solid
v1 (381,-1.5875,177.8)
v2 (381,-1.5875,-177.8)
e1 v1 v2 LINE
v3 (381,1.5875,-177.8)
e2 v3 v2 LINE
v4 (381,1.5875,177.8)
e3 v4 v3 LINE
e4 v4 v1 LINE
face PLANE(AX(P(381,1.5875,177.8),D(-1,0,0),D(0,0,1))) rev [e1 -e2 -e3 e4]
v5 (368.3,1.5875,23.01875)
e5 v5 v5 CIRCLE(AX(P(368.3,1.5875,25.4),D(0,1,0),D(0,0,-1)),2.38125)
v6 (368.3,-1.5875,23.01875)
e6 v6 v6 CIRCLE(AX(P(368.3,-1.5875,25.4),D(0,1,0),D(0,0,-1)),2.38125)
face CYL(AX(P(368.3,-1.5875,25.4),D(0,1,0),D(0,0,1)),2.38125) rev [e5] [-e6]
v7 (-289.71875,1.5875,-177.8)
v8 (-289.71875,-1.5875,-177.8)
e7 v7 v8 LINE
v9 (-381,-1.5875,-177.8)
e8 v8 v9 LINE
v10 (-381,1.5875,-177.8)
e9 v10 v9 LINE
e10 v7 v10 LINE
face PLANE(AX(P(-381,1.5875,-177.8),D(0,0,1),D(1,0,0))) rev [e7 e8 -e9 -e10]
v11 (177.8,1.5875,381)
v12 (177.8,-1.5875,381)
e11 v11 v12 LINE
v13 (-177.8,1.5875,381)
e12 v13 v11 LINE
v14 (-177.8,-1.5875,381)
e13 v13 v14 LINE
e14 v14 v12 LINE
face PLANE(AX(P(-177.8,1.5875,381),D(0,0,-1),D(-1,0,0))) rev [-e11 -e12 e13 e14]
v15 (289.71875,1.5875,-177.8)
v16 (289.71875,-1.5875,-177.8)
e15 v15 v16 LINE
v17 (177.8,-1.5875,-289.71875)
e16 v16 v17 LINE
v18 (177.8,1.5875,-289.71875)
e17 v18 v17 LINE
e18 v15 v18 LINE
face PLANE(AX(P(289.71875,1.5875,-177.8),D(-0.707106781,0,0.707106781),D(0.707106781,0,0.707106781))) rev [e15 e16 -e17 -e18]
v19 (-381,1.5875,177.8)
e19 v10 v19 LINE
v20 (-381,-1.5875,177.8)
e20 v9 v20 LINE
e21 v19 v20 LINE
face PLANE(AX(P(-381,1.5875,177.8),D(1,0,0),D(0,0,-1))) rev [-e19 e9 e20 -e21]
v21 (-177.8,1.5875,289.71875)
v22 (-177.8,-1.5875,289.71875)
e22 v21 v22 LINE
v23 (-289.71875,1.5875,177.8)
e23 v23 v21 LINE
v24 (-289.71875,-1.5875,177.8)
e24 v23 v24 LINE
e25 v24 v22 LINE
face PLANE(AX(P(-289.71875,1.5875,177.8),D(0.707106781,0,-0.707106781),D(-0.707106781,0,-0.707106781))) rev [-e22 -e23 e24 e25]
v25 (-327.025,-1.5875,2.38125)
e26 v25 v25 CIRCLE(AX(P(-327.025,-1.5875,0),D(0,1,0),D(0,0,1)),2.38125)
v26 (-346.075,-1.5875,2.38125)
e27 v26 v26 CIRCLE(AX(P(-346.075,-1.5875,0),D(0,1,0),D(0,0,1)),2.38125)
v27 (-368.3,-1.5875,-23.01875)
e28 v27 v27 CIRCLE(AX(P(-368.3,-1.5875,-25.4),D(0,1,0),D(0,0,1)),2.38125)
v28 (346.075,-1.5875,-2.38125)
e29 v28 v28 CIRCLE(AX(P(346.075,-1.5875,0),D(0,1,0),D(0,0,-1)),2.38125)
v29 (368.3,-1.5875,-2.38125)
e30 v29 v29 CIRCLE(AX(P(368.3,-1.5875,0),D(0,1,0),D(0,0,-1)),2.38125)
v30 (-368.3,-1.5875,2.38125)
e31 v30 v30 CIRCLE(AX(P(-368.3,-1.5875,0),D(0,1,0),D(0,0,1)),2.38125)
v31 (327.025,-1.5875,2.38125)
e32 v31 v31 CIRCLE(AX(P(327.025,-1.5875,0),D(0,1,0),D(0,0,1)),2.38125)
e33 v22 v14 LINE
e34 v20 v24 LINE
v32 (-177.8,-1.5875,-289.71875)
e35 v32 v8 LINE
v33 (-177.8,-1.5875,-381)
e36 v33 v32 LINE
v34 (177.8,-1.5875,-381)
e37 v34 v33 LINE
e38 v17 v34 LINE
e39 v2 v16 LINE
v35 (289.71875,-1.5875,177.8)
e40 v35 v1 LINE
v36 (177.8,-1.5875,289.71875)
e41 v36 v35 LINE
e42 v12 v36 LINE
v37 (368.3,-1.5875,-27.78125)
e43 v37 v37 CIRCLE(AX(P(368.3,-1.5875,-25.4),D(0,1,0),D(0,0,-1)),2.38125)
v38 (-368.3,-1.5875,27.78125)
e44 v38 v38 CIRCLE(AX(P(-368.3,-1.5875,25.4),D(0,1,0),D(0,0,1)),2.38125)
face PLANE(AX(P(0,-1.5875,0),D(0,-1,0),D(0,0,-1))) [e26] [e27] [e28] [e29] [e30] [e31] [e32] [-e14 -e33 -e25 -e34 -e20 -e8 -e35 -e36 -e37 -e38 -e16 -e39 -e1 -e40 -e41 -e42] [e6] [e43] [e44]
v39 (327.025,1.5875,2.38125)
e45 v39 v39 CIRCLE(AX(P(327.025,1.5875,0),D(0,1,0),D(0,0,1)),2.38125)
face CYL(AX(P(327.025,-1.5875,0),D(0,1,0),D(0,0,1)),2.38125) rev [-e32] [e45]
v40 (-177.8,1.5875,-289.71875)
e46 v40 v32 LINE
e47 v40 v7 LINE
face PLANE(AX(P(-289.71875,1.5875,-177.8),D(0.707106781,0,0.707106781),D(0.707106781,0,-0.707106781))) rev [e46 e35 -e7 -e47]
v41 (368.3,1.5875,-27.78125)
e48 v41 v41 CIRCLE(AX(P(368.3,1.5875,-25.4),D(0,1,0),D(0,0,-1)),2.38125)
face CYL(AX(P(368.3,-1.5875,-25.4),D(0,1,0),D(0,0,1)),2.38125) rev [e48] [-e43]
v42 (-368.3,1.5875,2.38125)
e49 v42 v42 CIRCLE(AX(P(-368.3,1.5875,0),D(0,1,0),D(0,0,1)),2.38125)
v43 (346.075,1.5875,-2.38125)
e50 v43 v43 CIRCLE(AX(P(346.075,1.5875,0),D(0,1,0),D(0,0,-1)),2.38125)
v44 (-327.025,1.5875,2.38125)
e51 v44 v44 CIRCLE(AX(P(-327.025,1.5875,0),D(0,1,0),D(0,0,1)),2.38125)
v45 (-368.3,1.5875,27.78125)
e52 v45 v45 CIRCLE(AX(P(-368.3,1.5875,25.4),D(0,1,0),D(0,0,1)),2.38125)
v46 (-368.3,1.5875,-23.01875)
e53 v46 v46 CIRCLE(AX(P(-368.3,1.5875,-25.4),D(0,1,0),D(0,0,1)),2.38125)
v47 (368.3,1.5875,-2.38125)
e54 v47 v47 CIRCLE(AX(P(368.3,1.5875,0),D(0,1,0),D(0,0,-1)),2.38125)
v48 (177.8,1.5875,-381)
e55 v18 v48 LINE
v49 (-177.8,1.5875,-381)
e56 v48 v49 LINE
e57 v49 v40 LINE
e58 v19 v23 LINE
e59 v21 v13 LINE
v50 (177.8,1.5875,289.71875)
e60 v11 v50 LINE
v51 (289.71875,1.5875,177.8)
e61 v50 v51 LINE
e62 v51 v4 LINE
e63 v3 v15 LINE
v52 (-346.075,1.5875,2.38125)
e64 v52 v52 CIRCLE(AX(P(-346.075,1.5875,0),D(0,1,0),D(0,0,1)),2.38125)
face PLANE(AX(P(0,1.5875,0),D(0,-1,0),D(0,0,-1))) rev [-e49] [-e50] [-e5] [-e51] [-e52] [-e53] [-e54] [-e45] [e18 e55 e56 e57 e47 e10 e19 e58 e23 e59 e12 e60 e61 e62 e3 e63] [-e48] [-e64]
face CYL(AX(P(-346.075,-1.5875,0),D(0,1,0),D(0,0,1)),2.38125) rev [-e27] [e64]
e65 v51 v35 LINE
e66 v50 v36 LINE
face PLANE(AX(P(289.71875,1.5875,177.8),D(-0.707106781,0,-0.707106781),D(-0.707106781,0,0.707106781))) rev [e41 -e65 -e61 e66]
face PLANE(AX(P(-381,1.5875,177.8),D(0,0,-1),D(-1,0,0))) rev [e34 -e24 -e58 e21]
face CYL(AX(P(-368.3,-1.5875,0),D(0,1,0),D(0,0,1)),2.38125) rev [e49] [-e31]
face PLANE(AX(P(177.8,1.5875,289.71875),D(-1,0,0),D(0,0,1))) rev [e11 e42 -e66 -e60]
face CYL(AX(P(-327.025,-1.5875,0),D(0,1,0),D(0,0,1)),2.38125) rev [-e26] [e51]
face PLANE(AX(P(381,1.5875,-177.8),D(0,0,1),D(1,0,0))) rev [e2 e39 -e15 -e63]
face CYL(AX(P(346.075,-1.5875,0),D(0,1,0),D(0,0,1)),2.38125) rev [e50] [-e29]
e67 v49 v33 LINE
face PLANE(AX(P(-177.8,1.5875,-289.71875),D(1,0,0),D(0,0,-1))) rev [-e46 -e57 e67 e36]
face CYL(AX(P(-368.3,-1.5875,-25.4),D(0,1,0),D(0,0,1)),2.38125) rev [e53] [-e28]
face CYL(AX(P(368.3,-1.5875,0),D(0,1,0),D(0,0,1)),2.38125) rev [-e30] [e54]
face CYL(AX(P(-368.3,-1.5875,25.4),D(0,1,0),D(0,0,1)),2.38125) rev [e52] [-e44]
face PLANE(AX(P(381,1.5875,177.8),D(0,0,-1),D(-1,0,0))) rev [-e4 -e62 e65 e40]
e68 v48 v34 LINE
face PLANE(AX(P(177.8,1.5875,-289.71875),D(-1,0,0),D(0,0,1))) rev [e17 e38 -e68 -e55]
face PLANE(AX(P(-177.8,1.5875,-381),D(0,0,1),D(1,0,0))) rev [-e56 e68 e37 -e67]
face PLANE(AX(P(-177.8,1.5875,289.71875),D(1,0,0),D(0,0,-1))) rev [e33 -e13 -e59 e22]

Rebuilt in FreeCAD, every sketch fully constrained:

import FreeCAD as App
import Part
import Sketcher
Q = App.Units.Quantity

doc = App.newDocument("Part")
params = doc.addObject("Spreadsheet::Sheet", "Params")
for row, (alias, value) in enumerate([
    ("sketch1_width", "14 in"),
    ("sketch1_width2", "3.59375 in"),
    ("pad1_length", "0.125 in"),
    ("sketch2_diameter", "0.1875 in"),
], start=1):
    params.set(f"A{row}", alias)
    params.set(f"B{row}", "=" + value)
    params.setAlias(f"B{row}", alias)

body = doc.addObject("PartDesign::Body", "Body")

# Sketch on XZ plane
sketch1 = body.newObject("Sketcher::SketchObject", "Sketch")
sketch1.AttachmentSupport = (doc.getObject("XZ_Plane"), [""])
sketch1.MapMode = "FlatFace"
sketch1.addGeometry(Part.LineSegment(App.Vector(-289.71875, -177.8, 0), App.Vector(-381, -177.8, 0)), False)
sketch1.addGeometry(Part.LineSegment(App.Vector(-381, -177.8, 0), App.Vector(-381, 177.8, 0)), False)
sketch1.addGeometry(Part.LineSegment(App.Vector(-381, 177.8, 0), App.Vector(-289.71875, 177.8, 0)), False)
sketch1.addGeometry(Part.LineSegment(App.Vector(-289.71875, 177.8, 0), App.Vector(-177.8, 289.71875, 0)), False)
sketch1.addGeometry(Part.LineSegment(App.Vector(-177.8, 289.71875, 0), App.Vector(-177.8, 381, 0)), False)
sketch1.addGeometry(Part.LineSegment(App.Vector(-177.8, 381, 0), App.Vector(177.8, 381, 0)), False)
sketch1.addGeometry(Part.LineSegment(App.Vector(177.8, 381, 0), App.Vector(177.8, 289.71875, 0)), False)
sketch1.addGeometry(Part.LineSegment(App.Vector(177.8, 289.71875, 0), App.Vector(289.71875, 177.8, 0)), False)
sketch1.addGeometry(Part.LineSegment(App.Vector(289.71875, 177.8, 0), App.Vector(381, 177.8, 0)), False)
sketch1.addGeometry(Part.LineSegment(App.Vector(381, 177.8, 0), App.Vector(381, -177.8, 0)), False)
sketch1.addGeometry(Part.LineSegment(App.Vector(381, -177.8, 0), App.Vector(289.71875, -177.8, 0)), False)
sketch1.addGeometry(Part.LineSegment(App.Vector(289.71875, -177.8, 0), App.Vector(177.8, -289.71875, 0)), False)
sketch1.addGeometry(Part.LineSegment(App.Vector(177.8, -289.71875, 0), App.Vector(177.8, -381, 0)), False)
sketch1.addGeometry(Part.LineSegment(App.Vector(177.8, -381, 0), App.Vector(-177.8, -381, 0)), False)
sketch1.addGeometry(Part.LineSegment(App.Vector(-177.8, -381, 0), App.Vector(-177.8, -289.71875, 0)), False)
sketch1.addGeometry(Part.LineSegment(App.Vector(-177.8, -289.71875, 0), App.Vector(-289.71875, -177.8, 0)), False)
sketch1.addConstraint(Sketcher.Constraint("Coincident", 0, 2, 1, 1))
sketch1.addConstraint(Sketcher.Constraint("Coincident", 1, 2, 2, 1))
sketch1.addConstraint(Sketcher.Constraint("Coincident", 2, 2, 3, 1))
sketch1.addConstraint(Sketcher.Constraint("Coincident", 3, 2, 4, 1))
sketch1.addConstraint(Sketcher.Constraint("Coincident", 4, 2, 5, 1))
sketch1.addConstraint(Sketcher.Constraint("Coincident", 5, 2, 6, 1))
sketch1.addConstraint(Sketcher.Constraint("Coincident", 6, 2, 7, 1))
sketch1.addConstraint(Sketcher.Constraint("Coincident", 7, 2, 8, 1))
sketch1.addConstraint(Sketcher.Constraint("Coincident", 8, 2, 9, 1))
sketch1.addConstraint(Sketcher.Constraint("Coincident", 9, 2, 10, 1))
sketch1.addConstraint(Sketcher.Constraint("Coincident", 10, 2, 11, 1))
sketch1.addConstraint(Sketcher.Constraint("Coincident", 11, 2, 12, 1))
sketch1.addConstraint(Sketcher.Constraint("Coincident", 12, 2, 13, 1))
sketch1.addConstraint(Sketcher.Constraint("Coincident", 13, 2, 14, 1))
sketch1.addConstraint(Sketcher.Constraint("Coincident", 14, 2, 15, 1))
sketch1.addConstraint(Sketcher.Constraint("Coincident", 15, 2, 0, 1))
sketch1.addConstraint(Sketcher.Constraint("Horizontal", 0))
sketch1.addConstraint(Sketcher.Constraint("Vertical", 1))
sketch1.addConstraint(Sketcher.Constraint("Horizontal", 2))
sketch1.addConstraint(Sketcher.Constraint("Vertical", 4))
sketch1.addConstraint(Sketcher.Constraint("Horizontal", 5))
sketch1.addConstraint(Sketcher.Constraint("Vertical", 6))
sketch1.addConstraint(Sketcher.Constraint("Horizontal", 8))
sketch1.addConstraint(Sketcher.Constraint("Vertical", 9))
sketch1.addConstraint(Sketcher.Constraint("Horizontal", 10))
sketch1.addConstraint(Sketcher.Constraint("Vertical", 12))
sketch1.addConstraint(Sketcher.Constraint("Horizontal", 13))
sketch1.addConstraint(Sketcher.Constraint("Vertical", 14))
sketch1.addConstraint(Sketcher.Constraint("Symmetric", 0, 2, 8, 2, -1, 1))
sketch1.addConstraint(Sketcher.Constraint("Symmetric", 2, 2, 10, 2, -1, 1))
sketch1.addConstraint(Sketcher.Constraint("Symmetric", 3, 2, 11, 2, -1, 1))
sketch1.addConstraint(Sketcher.Constraint("Symmetric", 5, 2, 13, 2, -1, 1))
sketch1.addConstraint(Sketcher.Constraint("Symmetric", 3, 2, 6, 2, -2))
sketch1.addConstraint(Sketcher.Constraint("Symmetric", 2, 2, 7, 2, -2))
sketch1.addConstraint(Sketcher.Constraint("Perpendicular", 3, 7))
sketch1.addConstraint(Sketcher.Constraint("Perpendicular", 11, 15))
sketch1.addConstraint(Sketcher.Constraint("Horizontal", 11, 2, 14, 2))
sketch1.addConstraint(Sketcher.Constraint("Equal", 13, 1))
sketch1.addConstraint(Sketcher.Constraint("Equal", 10, 4))
sketch1.addConstraint(Sketcher.Constraint("DistanceX", 5, 1, 5, 2, Q("14 in")))
sketch1.addConstraint(Sketcher.Constraint("DistanceX", 0, 2, -1, 1, Q("15 in")))
sketch1.addConstraint(Sketcher.Constraint("DistanceX", 0, 2, 0, 1, Q("3.59375 in")))
sketch1.setExpression("Constraints[39]", "Params.sketch1_width")
sketch1.setExpression("Constraints[41]", "Params.sketch1_width2")
pad1 = body.newObject("PartDesign::Pad", "Pad")
pad1.Profile = sketch1
pad1.setExpression("Length", "Params.pad1_length")
pad1.Midplane = True

# Sketch on XZ plane
sketch2 = body.newObject("Sketcher::SketchObject", "Sketch001")
sketch2.AttachmentSupport = (doc.getObject("XZ_Plane"), [""])
sketch2.MapMode = "FlatFace"
sketch2.AttachmentOffset = App.Placement(App.Vector(0, 0, -0.0625 * 25.4), App.Rotation())
sketch2.addGeometry(Part.Circle(App.Vector(-346.075, 0, 0), App.Vector(0, 0, 1), 2.38125), False)
sketch2.addGeometry(Part.Circle(App.Vector(-368.3, 0, 0), App.Vector(0, 0, 1), 2.38125), False)
sketch2.addGeometry(Part.Circle(App.Vector(-368.3, -25.4, 0), App.Vector(0, 0, 1), 2.38125), False)
sketch2.addGeometry(Part.Circle(App.Vector(-368.3, 25.4, 0), App.Vector(0, 0, 1), 2.38125), False)
sketch2.addGeometry(Part.Circle(App.Vector(368.3, 25.4, 0), App.Vector(0, 0, 1), 2.38125), False)
sketch2.addGeometry(Part.Circle(App.Vector(368.3, -25.4, 0), App.Vector(0, 0, 1), 2.38125), False)
sketch2.addGeometry(Part.Circle(App.Vector(368.3, 0, 0), App.Vector(0, 0, 1), 2.38125), False)
sketch2.addGeometry(Part.Circle(App.Vector(346.075, 0, 0), App.Vector(0, 0, 1), 2.38125), False)
sketch2.addGeometry(Part.Circle(App.Vector(-327.025, 0, 0), App.Vector(0, 0, 1), 2.38125), False)
sketch2.addGeometry(Part.Circle(App.Vector(327.025, 0, 0), App.Vector(0, 0, 1), 2.38125), False)
sketch2.addConstraint(Sketcher.Constraint("Equal", 0, 1))
sketch2.addConstraint(Sketcher.Constraint("Equal", 1, 2))
sketch2.addConstraint(Sketcher.Constraint("Equal", 2, 3))
sketch2.addConstraint(Sketcher.Constraint("Equal", 3, 4))
sketch2.addConstraint(Sketcher.Constraint("Equal", 4, 5))
sketch2.addConstraint(Sketcher.Constraint("Equal", 5, 6))
sketch2.addConstraint(Sketcher.Constraint("Equal", 6, 7))
sketch2.addConstraint(Sketcher.Constraint("Equal", 7, 8))
sketch2.addConstraint(Sketcher.Constraint("Equal", 8, 9))
sketch2.addConstraint(Sketcher.Constraint("Symmetric", 2, 3, 4, 3, -1, 1))
sketch2.addConstraint(Sketcher.Constraint("Symmetric", 3, 3, 5, 3, -1, 1))
sketch2.addConstraint(Sketcher.Constraint("Symmetric", 1, 3, 6, 3, -1, 1))
sketch2.addConstraint(Sketcher.Constraint("Symmetric", 0, 3, 7, 3, -1, 1))
sketch2.addConstraint(Sketcher.Constraint("Symmetric", 8, 3, 9, 3, -1, 1))
sketch2.addConstraint(Sketcher.Constraint("Symmetric", 3, 3, 4, 3, -2))
sketch2.addConstraint(Sketcher.Constraint("PointOnObject", 0, 3, -1))
sketch2.addConstraint(Sketcher.Constraint("PointOnObject", 1, 3, -1))
sketch2.addConstraint(Sketcher.Constraint("PointOnObject", 8, 3, -1))
sketch2.addConstraint(Sketcher.Constraint("Vertical", 1, 3, 2, 3))
sketch2.addConstraint(Sketcher.Constraint("Diameter", 0, Q("0.1875 in")))
sketch2.addConstraint(Sketcher.Constraint("DistanceY", 2, 3, -1, 1, Q("1 in")))
sketch2.addConstraint(Sketcher.Constraint("DistanceX", 3, 3, 4, 3, Q("29 in")))
sketch2.addConstraint(Sketcher.Constraint("DistanceX", 8, 3, 7, 3, Q("26.5 in")))
sketch2.addConstraint(Sketcher.Constraint("DistanceX", 0, 3, 7, 3, Q("27.25 in")))
sketch2.setExpression("Constraints[19]", "Params.sketch2_diameter")
pocket1 = body.newObject("PartDesign::Pocket", "Pocket")
pocket1.Profile = sketch2
pocket1.Type = "ThroughAll"
pocket1.Reversed = True

doc.recompute()
